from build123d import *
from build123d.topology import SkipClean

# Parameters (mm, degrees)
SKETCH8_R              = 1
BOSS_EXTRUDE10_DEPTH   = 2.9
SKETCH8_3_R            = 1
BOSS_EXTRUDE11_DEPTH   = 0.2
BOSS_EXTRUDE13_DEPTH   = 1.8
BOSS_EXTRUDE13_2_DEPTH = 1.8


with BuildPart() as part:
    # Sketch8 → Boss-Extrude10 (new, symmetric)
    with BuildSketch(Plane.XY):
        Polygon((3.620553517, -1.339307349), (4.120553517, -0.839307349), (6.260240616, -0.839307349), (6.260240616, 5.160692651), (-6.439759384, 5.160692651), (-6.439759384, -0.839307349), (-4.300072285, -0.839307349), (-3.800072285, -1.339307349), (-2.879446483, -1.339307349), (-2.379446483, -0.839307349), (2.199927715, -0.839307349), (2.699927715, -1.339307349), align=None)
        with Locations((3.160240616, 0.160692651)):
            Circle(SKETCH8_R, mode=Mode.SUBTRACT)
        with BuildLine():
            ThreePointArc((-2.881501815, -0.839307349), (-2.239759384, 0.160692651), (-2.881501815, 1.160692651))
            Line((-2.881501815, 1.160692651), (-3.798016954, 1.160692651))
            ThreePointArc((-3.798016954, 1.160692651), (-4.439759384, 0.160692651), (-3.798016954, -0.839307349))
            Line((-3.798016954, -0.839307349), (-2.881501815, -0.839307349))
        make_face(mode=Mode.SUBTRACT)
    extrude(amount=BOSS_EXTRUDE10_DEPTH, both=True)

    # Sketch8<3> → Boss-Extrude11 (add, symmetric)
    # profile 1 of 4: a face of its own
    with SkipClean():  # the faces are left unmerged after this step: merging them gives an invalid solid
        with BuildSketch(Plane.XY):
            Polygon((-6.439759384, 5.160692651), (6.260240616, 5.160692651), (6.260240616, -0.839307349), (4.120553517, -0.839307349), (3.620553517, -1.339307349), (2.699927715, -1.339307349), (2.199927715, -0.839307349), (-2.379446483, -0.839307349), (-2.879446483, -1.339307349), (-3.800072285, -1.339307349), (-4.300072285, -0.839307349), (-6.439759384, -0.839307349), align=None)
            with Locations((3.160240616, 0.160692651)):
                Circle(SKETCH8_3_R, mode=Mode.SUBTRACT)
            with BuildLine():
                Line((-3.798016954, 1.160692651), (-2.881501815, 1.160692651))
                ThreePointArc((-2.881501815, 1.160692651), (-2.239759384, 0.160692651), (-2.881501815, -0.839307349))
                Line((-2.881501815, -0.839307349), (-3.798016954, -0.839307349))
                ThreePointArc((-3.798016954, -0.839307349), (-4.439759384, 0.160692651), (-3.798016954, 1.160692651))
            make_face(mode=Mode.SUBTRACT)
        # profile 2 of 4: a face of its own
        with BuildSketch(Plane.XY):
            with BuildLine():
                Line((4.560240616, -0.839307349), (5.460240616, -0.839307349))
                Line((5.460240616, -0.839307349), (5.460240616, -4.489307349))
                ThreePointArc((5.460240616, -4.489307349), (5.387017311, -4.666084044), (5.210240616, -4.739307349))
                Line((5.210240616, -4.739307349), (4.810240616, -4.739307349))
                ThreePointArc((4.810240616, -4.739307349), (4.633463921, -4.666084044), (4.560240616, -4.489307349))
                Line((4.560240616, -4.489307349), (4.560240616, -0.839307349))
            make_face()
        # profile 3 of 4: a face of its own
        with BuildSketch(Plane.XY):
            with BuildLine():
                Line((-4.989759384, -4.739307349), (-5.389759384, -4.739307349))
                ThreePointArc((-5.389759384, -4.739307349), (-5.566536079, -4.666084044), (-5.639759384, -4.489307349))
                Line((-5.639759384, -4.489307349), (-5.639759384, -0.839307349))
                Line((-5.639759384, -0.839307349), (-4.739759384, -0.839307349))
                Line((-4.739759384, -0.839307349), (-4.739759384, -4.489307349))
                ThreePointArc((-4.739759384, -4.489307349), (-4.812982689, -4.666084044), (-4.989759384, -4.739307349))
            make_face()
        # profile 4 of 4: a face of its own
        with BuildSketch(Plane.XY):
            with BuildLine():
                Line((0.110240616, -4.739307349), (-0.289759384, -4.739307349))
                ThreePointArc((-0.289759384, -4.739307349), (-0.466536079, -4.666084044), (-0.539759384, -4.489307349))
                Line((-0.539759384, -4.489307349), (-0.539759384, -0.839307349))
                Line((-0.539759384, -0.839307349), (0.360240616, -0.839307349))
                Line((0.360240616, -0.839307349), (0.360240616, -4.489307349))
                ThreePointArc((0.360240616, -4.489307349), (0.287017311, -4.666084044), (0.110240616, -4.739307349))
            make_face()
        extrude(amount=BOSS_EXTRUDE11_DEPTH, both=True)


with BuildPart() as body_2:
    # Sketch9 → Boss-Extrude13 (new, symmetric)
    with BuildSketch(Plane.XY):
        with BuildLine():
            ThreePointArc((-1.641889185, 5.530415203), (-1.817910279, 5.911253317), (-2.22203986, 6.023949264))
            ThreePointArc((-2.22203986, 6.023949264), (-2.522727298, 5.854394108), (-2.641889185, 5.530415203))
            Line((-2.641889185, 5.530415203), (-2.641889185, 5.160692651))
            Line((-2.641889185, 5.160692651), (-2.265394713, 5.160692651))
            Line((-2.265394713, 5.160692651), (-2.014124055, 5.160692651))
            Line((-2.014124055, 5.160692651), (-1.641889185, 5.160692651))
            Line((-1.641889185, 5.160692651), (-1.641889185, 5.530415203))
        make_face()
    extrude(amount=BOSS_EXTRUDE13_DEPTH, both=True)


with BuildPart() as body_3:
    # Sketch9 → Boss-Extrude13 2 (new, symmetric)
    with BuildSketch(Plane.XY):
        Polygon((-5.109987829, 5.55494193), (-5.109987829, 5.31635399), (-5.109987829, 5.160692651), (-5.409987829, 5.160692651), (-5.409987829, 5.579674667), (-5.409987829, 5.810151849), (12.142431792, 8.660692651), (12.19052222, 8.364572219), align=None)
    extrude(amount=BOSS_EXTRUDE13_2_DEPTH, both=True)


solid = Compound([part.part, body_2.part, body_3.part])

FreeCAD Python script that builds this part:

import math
import FreeCAD as App
import Part
import Sketcher

V = App.Vector


def add_polygon(sketch, points):
    """Adds a closed chain of lines whose ends are joined by coincident constraints."""
    first, n = sketch.GeometryCount, len(points)
    for a, b in zip(points, points[1:] + points[:1]):
        sketch.addGeometry(Part.LineSegment(App.Vector(*a, 0), App.Vector(*b, 0)), False)
    for i in range(n):
        sketch.addConstraint(Sketcher.Constraint("Coincident", first + i, 2, first + (i + 1) % n, 1))

doc = App.newDocument("Part")
body = doc.addObject("PartDesign::Body", "Body")

# Sketch on XY plane
sketch1 = body.newObject("Sketcher::SketchObject", "Sketch")
sketch1.AttachmentSupport = (doc.getObject("XY_Plane"), [""])
sketch1.MapMode = "FlatFace"
add_polygon(sketch1, [(3.620554, -1.339307), (4.120554, -0.839307), (6.260241, -0.839307), (6.260241, 5.160693), (-6.439759, 5.160693), (-6.439759, -0.839307), (-4.300072, -0.839307), (-3.800072, -1.339307), (-2.879446, -1.339307), (-2.379446, -0.839307), (2.199928, -0.839307), (2.699928, -1.339307)])  # lines 0-11
sketch1.addGeometry(Part.ArcOfCircle(Part.Circle(V(-3.339759, 0.160693, 0), V(0, 0, 1), 1.1), math.radians(-65.380023), math.radians(65.380023)), False)  # 12
sketch1.addGeometry(Part.LineSegment(V(-2.881502, -0.839307, 0), V(-3.798017, -0.839307, 0)), False)  # 13
sketch1.addGeometry(Part.ArcOfCircle(Part.Circle(V(-3.339759, 0.160693, 0), V(0, 0, 1), 1.1), math.radians(114.619977), math.radians(245.380023)), False)  # 14
sketch1.addGeometry(Part.LineSegment(V(-3.798017, 1.160693, 0), V(-2.881502, 1.160693, 0)), False)  # 15
sketch1.addGeometry(Part.Circle(V(3.160241, 0.160693, 0), V(0, 0, 1), 1), False)  # 16
sketch1.addConstraint(Sketcher.Constraint("Coincident", 12, 1, 13, 1))
sketch1.addConstraint(Sketcher.Constraint("Coincident", 13, 2, 14, 2))
sketch1.addConstraint(Sketcher.Constraint("Coincident", 14, 1, 15, 1))
sketch1.addConstraint(Sketcher.Constraint("Coincident", 15, 2, 12, 2))
sketch1.addConstraint(Sketcher.Constraint("Horizontal", 1))
sketch1.addConstraint(Sketcher.Constraint("Vertical", 2))
sketch1.addConstraint(Sketcher.Constraint("Horizontal", 3))
sketch1.addConstraint(Sketcher.Constraint("Vertical", 4))
sketch1.addConstraint(Sketcher.Constraint("Horizontal", 5))
sketch1.addConstraint(Sketcher.Constraint("Horizontal", 7))
sketch1.addConstraint(Sketcher.Constraint("Horizontal", 9))
sketch1.addConstraint(Sketcher.Constraint("Horizontal", 11))
sketch1.addConstraint(Sketcher.Constraint("Horizontal", 13))
sketch1.addConstraint(Sketcher.Constraint("Horizontal", 15))
sketch1.addConstraint(Sketcher.Constraint("Coincident", 14, 3, 12, 3))
sketch1.addConstraint(Sketcher.Constraint("Equal", 12, 14))
sketch1.addConstraint(Sketcher.Constraint("Perpendicular", 0, 6))
sketch1.addConstraint(Sketcher.Constraint("Perpendicular", 6, 8))
sketch1.addConstraint(Sketcher.Constraint("Perpendicular", 8, 10))
sketch1.addConstraint(Sketcher.Constraint("Horizontal", 14, 3, 16, 3))
sketch1.addConstraint(Sketcher.Constraint("Horizontal", 1, 2, 4, 2))
sketch1.addConstraint(Sketcher.Constraint("Horizontal", 5, 2, 8, 2))
sketch1.addConstraint(Sketcher.Constraint("Horizontal", 7, 2, 10, 2))
sketch1.addConstraint(Sketcher.Constraint("Horizontal", 9, 2, 12, 1))
sketch1.addConstraint(Sketcher.Constraint("Vertical", 13, 2, 14, 1))
sketch1.addConstraint(Sketcher.Constraint("Equal", 1, 5))
sketch1.addConstraint(Sketcher.Constraint("Equal", 7, 11))
sketch1.addConstraint(Sketcher.Constraint("Equal", 0, 6))
sketch1.addConstraint(Sketcher.Constraint("Diameter", 16, 2.0))
sketch1.addConstraint(Sketcher.Constraint("Radius", 12, 1.1))
sketch1.addConstraint(Sketcher.Constraint("DistanceY", 2, 1, 2, 2, 6.0))
sketch1.addConstraint(Sketcher.Constraint("DistanceX", 3, 2, 3, 1, 12.7))
sketch1.addConstraint(Sketcher.Constraint("DistanceY", 0, 2, 16, 3, 1.0))
sketch1.addConstraint(Sketcher.Constraint("DistanceX", 12, 3, 16, 3, 6.5))
sketch1.addConstraint(Sketcher.Constraint("DistanceX", 16, 3, 1, 2, 3.1))
sketch1.addConstraint(Sketcher.Constraint("DistanceX", 5, 2, 6, 2, 0.5))
sketch1.addConstraint(Sketcher.Constraint("DistanceX", 12, 1, -1, 1, 2.881502))
sketch1.addConstraint(Sketcher.Constraint("DistanceX", 1, 1, 1, 2, 2.139687))
sketch1.addConstraint(Sketcher.Constraint("DistanceX", 7, 1, 7, 2, 0.920626))
sketch1.addConstraint(Sketcher.Constraint("DistanceY", -1, 1, 12, 3, 0.160693))
pad1 = body.newObject("PartDesign::Pad", "Pad")
pad1.Profile = sketch1
pad1.Length = 5.8
pad1.Midplane = True

# Sketch on XY plane
sketch2 = body.newObject("Sketcher::SketchObject", "Sketch001")
sketch2.AttachmentSupport = (doc.getObject("XY_Plane"), [""])
sketch2.MapMode = "FlatFace"
sketch2.addGeometry(Part.LineSegment(V(6.260241, 5.160693, 0), V(-6.439759, 5.160693, 0)), False)
sketch2.addGeometry(Part.LineSegment(V(-6.439759, 5.160693, 0), V(-6.439759, -0.839307, 0)), False)
sketch2.addGeometry(Part.LineSegment(V(-6.439759, -0.839307, 0), V(-5.639759, -0.839307, 0)), False)
sketch2.addGeometry(Part.LineSegment(V(-5.639759, -0.839307, 0), V(-5.639759, -4.489307, 0)), False)
sketch2.addGeometry(Part.ArcOfCircle(Part.Circle(V(-5.389759, -4.489307, 0), V(0, 0, 1), 0.25), math.radians(-180), math.radians(-90)), False)
sketch2.addGeometry(Part.LineSegment(V(-5.389759, -4.739307, 0), V(-4.989759, -4.739307, 0)), False)
sketch2.addGeometry(Part.ArcOfCircle(Part.Circle(V(-4.989759, -4.489307, 0), V(0, 0, 1), 0.25), math.radians(-90), math.radians(0)), False)
sketch2.addGeometry(Part.LineSegment(V(-4.739759, -4.489307, 0), V(-4.739759, -0.839307, 0)), False)
sketch2.addGeometry(Part.LineSegment(V(-4.739759, -0.839307, 0), V(-4.300072, -0.839307, 0)), False)
sketch2.addGeometry(Part.LineSegment(V(-4.300072, -0.839307, 0), V(-3.800072, -1.339307, 0)), False)
sketch2.addGeometry(Part.LineSegment(V(-3.800072, -1.339307, 0), V(-2.879446, -1.339307, 0)), False)
sketch2.addGeometry(Part.LineSegment(V(-2.879446, -1.339307, 0), V(-2.379446, -0.839307, 0)), False)
sketch2.addGeometry(Part.LineSegment(V(-2.379446, -0.839307, 0), V(-0.539759, -0.839307, 0)), False)
sketch2.addGeometry(Part.LineSegment(V(-0.539759, -0.839307, 0), V(-0.539759, -4.489307, 0)), False)
sketch2.addGeometry(Part.ArcOfCircle(Part.Circle(V(-0.289759, -4.489307, 0), V(0, 0, 1), 0.25), math.radians(-180), math.radians(-90)), False)
sketch2.addGeometry(Part.LineSegment(V(-0.289759, -4.739307, 0), V(0.110241, -4.739307, 0)), False)
sketch2.addGeometry(Part.ArcOfCircle(Part.Circle(V(0.110241, -4.489307, 0), V(0, 0, 1), 0.25), math.radians(-90), math.radians(0)), False)
sketch2.addGeometry(Part.LineSegment(V(0.360241, -4.489307, 0), V(0.360241, -0.839307, 0)), False)
sketch2.addGeometry(Part.LineSegment(V(0.360241, -0.839307, 0), V(2.199928, -0.839307, 0)), False)
sketch2.addGeometry(Part.LineSegment(V(2.199928, -0.839307, 0), V(2.699928, -1.339307, 0)), False)
sketch2.addGeometry(Part.LineSegment(V(2.699928, -1.339307, 0), V(3.620554, -1.339307, 0)), False)
sketch2.addGeometry(Part.LineSegment(V(3.620554, -1.339307, 0), V(4.120554, -0.839307, 0)), False)
sketch2.addGeometry(Part.LineSegment(V(4.120554, -0.839307, 0), V(4.560241, -0.839307, 0)), False)
sketch2.addGeometry(Part.LineSegment(V(4.560241, -0.839307, 0), V(4.560241, -4.489307, 0)), False)
sketch2.addGeometry(Part.ArcOfCircle(Part.Circle(V(4.810241, -4.489307, 0), V(0, 0, 1), 0.25), math.radians(-180), math.radians(-90)), False)
sketch2.addGeometry(Part.LineSegment(V(4.810241, -4.739307, 0), V(5.210241, -4.739307, 0)), False)
sketch2.addGeometry(Part.ArcOfCircle(Part.Circle(V(5.210241, -4.489307, 0), V(0, 0, 1), 0.25), math.radians(-90), math.radians(0)), False)
sketch2.addGeometry(Part.LineSegment(V(5.460241, -4.489307, 0), V(5.460241, -0.839307, 0)), False)
sketch2.addGeometry(Part.LineSegment(V(5.460241, -0.839307, 0), V(6.260241, -0.839307, 0)), False)
sketch2.addGeometry(Part.LineSegment(V(6.260241, -0.839307, 0), V(6.260241, 5.160693, 0)), False)
sketch2.addGeometry(Part.Circle(V(3.160241, 0.160693, 0), V(0, 0, 1), 1), False)
sketch2.addGeometry(Part.LineSegment(V(-3.798017, 1.160693, 0), V(-2.881502, 1.160693, 0)), False)
sketch2.addGeometry(Part.ArcOfCircle(Part.Circle(V(-3.339759, 0.160693, 0), V(0, 0, 1), 1.1), math.radians(-65.380023), math.radians(65.380023)), False)
sketch2.addGeometry(Part.LineSegment(V(-2.881502, -0.839307, 0), V(-3.798017, -0.839307, 0)), False)
sketch2.addGeometry(Part.ArcOfCircle(Part.Circle(V(-3.339759, 0.160693, 0), V(0, 0, 1), 1.1), math.radians(114.619977), math.radians(245.380023)), False)
sketch2.addConstraint(Sketcher.Constraint("Coincident", 0, 2, 1, 1))
sketch2.addConstraint(Sketcher.Constraint("Coincident", 1, 2, 2, 1))
sketch2.addConstraint(Sketcher.Constraint("Coincident", 2, 2, 3, 1))
sketch2.addConstraint(Sketcher.Constraint("Tangent", 3, 2, 4, 1))
sketch2.addConstraint(Sketcher.Constraint("Tangent", 4, 2, 5, 1))
sketch2.addConstraint(Sketcher.Constraint("Tangent", 5, 2, 6, 1))
sketch2.addConstraint(Sketcher.Constraint("Tangent", 6, 2, 7, 1))
sketch2.addConstraint(Sketcher.Constraint("Coincident", 7, 2, 8, 1))
sketch2.addConstraint(Sketcher.Constraint("Coincident", 8, 2, 9, 1))
sketch2.addConstraint(Sketcher.Constraint("Coincident", 9, 2, 10, 1))
sketch2.addConstraint(Sketcher.Constraint("Coincident", 10, 2, 11, 1))
sketch2.addConstraint(Sketcher.Constraint("Coincident", 11, 2, 12, 1))
sketch2.addConstraint(Sketcher.Constraint("Coincident", 12, 2, 13, 1))
sketch2.addConstraint(Sketcher.Constraint("Tangent", 13, 2, 14, 1))
sketch2.addConstraint(Sketcher.Constraint("Tangent", 14, 2, 15, 1))
sketch2.addConstraint(Sketcher.Constraint("Tangent", 15, 2, 16, 1))
sketch2.addConstraint(Sketcher.Constraint("Tangent", 16, 2, 17, 1))
sketch2.addConstraint(Sketcher.Constraint("Coincident", 17, 2, 18, 1))
sketch2.addConstraint(Sketcher.Constraint("Coincident", 18, 2, 19, 1))
sketch2.addConstraint(Sketcher.Constraint("Coincident", 19, 2, 20, 1))
sketch2.addConstraint(Sketcher.Constraint("Coincident", 20, 2, 21, 1))
sketch2.addConstraint(Sketcher.Constraint("Coincident", 21, 2, 22, 1))
sketch2.addConstraint(Sketcher.Constraint("Coincident", 22, 2, 23, 1))
sketch2.addConstraint(Sketcher.Constraint("Tangent", 23, 2, 24, 1))
sketch2.addConstraint(Sketcher.Constraint("Tangent", 24, 2, 25, 1))
sketch2.addConstraint(Sketcher.Constraint("Tangent", 25, 2, 26, 1))
sketch2.addConstraint(Sketcher.Constraint("Tangent", 26, 2, 27, 1))
sketch2.addConstraint(Sketcher.Constraint("Coincident", 27, 2, 28, 1))
sketch2.addConstraint(Sketcher.Constraint("Coincident", 28, 2, 29, 1))
sketch2.addConstraint(Sketcher.Constraint("Coincident", 29, 2, 0, 1))
sketch2.addConstraint(Sketcher.Constraint("Coincident", 31, 2, 32, 2))
sketch2.addConstraint(Sketcher.Constraint("Coincident", 32, 1, 33, 1))
sketch2.addConstraint(Sketcher.Constraint("Coincident", 33, 2, 34, 2))
sketch2.addConstraint(Sketcher.Constraint("Coincident", 34, 1, 31, 1))
sketch2.addConstraint(Sketcher.Constraint("Horizontal", 0))
sketch2.addConstraint(Sketcher.Constraint("Vertical", 1))
sketch2.addConstraint(Sketcher.Constraint("Horizontal", 2))
sketch2.addConstraint(Sketcher.Constraint("Vertical", 3))
sketch2.addConstraint(Sketcher.Constraint("Horizontal", 5))
sketch2.addConstraint(Sketcher.Constraint("Vertical", 7))
sketch2.addConstraint(Sketcher.Constraint("Horizontal", 8))
sketch2.addConstraint(Sketcher.Constraint("Horizontal", 10))
sketch2.addConstraint(Sketcher.Constraint("Horizontal", 12))
sketch2.addConstraint(Sketcher.Constraint("Vertical", 13))
sketch2.addConstraint(Sketcher.Constraint("Horizontal", 15))
sketch2.addConstraint(Sketcher.Constraint("Vertical", 17))
sketch2.addConstraint(Sketcher.Constraint("Horizontal", 18))
sketch2.addConstraint(Sketcher.Constraint("Horizontal", 20))
sketch2.addConstraint(Sketcher.Constraint("Horizontal", 22))
sketch2.addConstraint(Sketcher.Constraint("Vertical", 23))
sketch2.addConstraint(Sketcher.Constraint("Horizontal", 25))
sketch2.addConstraint(Sketcher.Constraint("Vertical", 27))
sketch2.addConstraint(Sketcher.Constraint("Horizontal", 28))
sketch2.addConstraint(Sketcher.Constraint("Vertical", 29))
sketch2.addConstraint(Sketcher.Constraint("Horizontal", 31))
sketch2.addConstraint(Sketcher.Constraint("Horizontal", 33))
sketch2.addConstraint(Sketcher.Constraint("Coincident", 34, 3, 32, 3))
sketch2.addConstraint(Sketcher.Constraint("Equal", 4, 6))
sketch2.addConstraint(Sketcher.Constraint("Equal", 6, 14))
sketch2.addConstraint(Sketcher.Constraint("Equal", 14, 16))
sketch2.addConstraint(Sketcher.Constraint("Equal", 16, 24))
sketch2.addConstraint(Sketcher.Constraint("Equal", 24, 26))
sketch2.addConstraint(Sketcher.Constraint("Equal", 32, 34))
sketch2.addConstraint(Sketcher.Constraint("Perpendicular", 9, 11))
sketch2.addConstraint(Sketcher.Constraint("Perpendicular", 11, 19))
sketch2.addConstraint(Sketcher.Constraint("Perpendicular", 19, 21))
sketch2.addConstraint(Sketcher.Constraint("Horizontal", 6, 3, 14, 3))
sketch2.addConstraint(Sketcher.Constraint("Horizontal", 16, 3, 24, 3))
sketch2.addConstraint(Sketcher.Constraint("Horizontal", 30, 3, 32, 3))
sketch2.addConstraint(Sketcher.Constraint("Horizontal", 2, 2, 7, 2))
sketch2.addConstraint(Sketcher.Constraint("Horizontal", 8, 2, 11, 2))
sketch2.addConstraint(Sketcher.Constraint("Horizontal", 12, 2, 17, 2))
sketch2.addConstraint(Sketcher.Constraint("Horizontal", 10, 2, 19, 2))
sketch2.addConstraint(Sketcher.Constraint("Horizontal", 18, 2, 21, 2))
sketch2.addConstraint(Sketcher.Constraint("Horizontal", 22, 2, 27, 2))
sketch2.addConstraint(Sketcher.Constraint("Horizontal", 28, 2, 32, 1))
sketch2.addConstraint(Sketcher.Constraint("Vertical", 31, 2, 32, 1))
sketch2.addConstraint(Sketcher.Constraint("Equal", 5, 15))
sketch2.addConstraint(Sketcher.Constraint("Equal", 12, 18))
sketch2.addConstraint(Sketcher.Constraint("Equal", 10, 20))
sketch2.addConstraint(Sketcher.Constraint("Equal", 8, 22))
sketch2.addConstraint(Sketcher.Constraint("Equal", 15, 25))
sketch2.addConstraint(Sketcher.Constraint("Equal", 2, 28))
sketch2.addConstraint(Sketcher.Constraint("Equal", 9, 11))
sketch2.addConstraint(Sketcher.Constraint("Diameter", 30, 2.0))
sketch2.addConstraint(Sketcher.Constraint("Radius", 32, 1.1))
sketch2.addConstraint(Sketcher.Constraint("DistanceY", 1, 2, 1, 1, 6.0))
sketch2.addConstraint(Sketcher.Constraint("Radius", 4, 0.25))
sketch2.addConstraint(Sketcher.Constraint("DistanceX", 0, 2, 0, 1, 12.7))
sketch2.addConstraint(Sketcher.Constraint("DistanceX", 2, 1, 2, 2, 0.8))
sketch2.addConstraint(Sketcher.Constraint("DistanceX", 5, 1, 5, 2, 0.4))
sketch2.addConstraint(Sketcher.Constraint("DistanceY", 32, 3, 0, 2, 5.0))
sketch2.addConstraint(Sketcher.Constraint("DistanceY", 3, 2, 3, 1, 3.65))
sketch2.addConstraint(Sketcher.Constraint("DistanceX", 32, 3, 30, 3, 6.5))
sketch2.addConstraint(Sketcher.Constraint("DistanceX", 0, 2, 32, 3, 3.1))
sketch2.addConstraint(Sketcher.Constraint("DistanceX", 8, 2, 9, 2, 0.5))
sketch2.addConstraint(Sketcher.Constraint("DistanceX", 31, 2, -1, 1, 2.881502))
sketch2.addConstraint(Sketcher.Constraint("DistanceX", 8, 1, 8, 2, 0.439687))
sketch2.addConstraint(Sketcher.Constraint("DistanceX", 10, 1, 10, 2, 0.920626))
sketch2.addConstraint(Sketcher.Constraint("DistanceY", 4, 3, -1, 1, 4.489307))
pad2 = body.newObject("PartDesign::Pad", "Pad001")
pad2.Profile = sketch2
pad2.Length = 0.4
pad2.Midplane = True
body2 = doc.addObject("PartDesign::Body", "Body001")

# Sketch on XY plane
sketch3 = body2.newObject("Sketcher::SketchObject", "Sketch002")
sketch3.AttachmentSupport = (doc.getObject("XY_Plane001"), [""])
sketch3.MapMode = "FlatFace"
sketch3.addGeometry(Part.ArcOfCircle(Part.Circle(V(-2.141889, 5.530415, 0), V(0, 0, 1), 0.5), math.radians(0), math.radians(99.224388)), False)
sketch3.addGeometry(Part.ArcOfCircle(Part.Circle(V(-2.141889, 5.530415, 0), V(0, 0, 1), 0.5), math.radians(99.224388), math.radians(180)), False)
sketch3.addGeometry(Part.LineSegment(V(-2.641889, 5.530415, 0), V(-2.641889, 5.160693, 0)), False)
sketch3.addGeometry(Part.LineSegment(V(-2.641889, 5.160693, 0), V(-1.641889, 5.160693, 0)), False)
sketch3.addGeometry(Part.LineSegment(V(-1.641889, 5.160693, 0), V(-1.641889, 5.530415, 0)), False)
sketch3.addConstraint(Sketcher.Constraint("Tangent", 0, 2, 1, 1))
sketch3.addConstraint(Sketcher.Constraint("Tangent", 1, 2, 2, 1))
sketch3.addConstraint(Sketcher.Constraint("Coincident", 2, 2, 3, 1))
sketch3.addConstraint(Sketcher.Constraint("Coincident", 3, 2, 4, 1))
sketch3.addConstraint(Sketcher.Constraint("Tangent", 4, 2, 0, 1))
sketch3.addConstraint(Sketcher.Constraint("Vertical", 2))
sketch3.addConstraint(Sketcher.Constraint("Horizontal", 3))
sketch3.addConstraint(Sketcher.Constraint("Vertical", 4))
sketch3.addConstraint(Sketcher.Constraint("Equal", 0, 1))
sketch3.addConstraint(Sketcher.Constraint("Radius", 0, 0.5))
sketch3.addConstraint(Sketcher.Constraint("DistanceY", 2, 2, 2, 1, 0.369723))
sketch3.addConstraint(Sketcher.Constraint("DistanceX", 0, 3, -1, 1, 2.141889))
sketch3.addConstraint(Sketcher.Constraint("DistanceX", 0, 2, -1, 1, 2.22204))
sketch3.addConstraint(Sketcher.Constraint("DistanceY", -1, 1, 0, 2, 6.023949))
pad3 = body2.newObject("PartDesign::Pad", "Pad002")
pad3.Profile = sketch3
pad3.Length = 3.6
pad3.Midplane = True
body3 = doc.addObject("PartDesign::Body", "Body002")

# Sketch on XY plane
sketch4 = body3.newObject("Sketcher::SketchObject", "Sketch003")
sketch4.AttachmentSupport = (doc.getObject("XY_Plane002"), [""])
sketch4.MapMode = "FlatFace"
add_polygon(sketch4, [(-5.109988, 5.160693), (-5.109988, 5.554942), (12.190522, 8.364572), (12.142432, 8.660693), (-5.409988, 5.810152), (-5.409988, 5.160693)])  # lines 0-5
sketch4.addConstraint(Sketcher.Constraint("Vertical", 0))
sketch4.addConstraint(Sketcher.Constraint("Vertical", 4))
sketch4.addConstraint(Sketcher.Constraint("Horizontal", 5))
sketch4.addConstraint(Sketcher.Constraint("Perpendicular", 1, 2))
sketch4.addConstraint(Sketcher.Constraint("Perpendicular", 2, 3))
sketch4.addConstraint(Sketcher.Constraint("DistanceX", 5, 1, 5, 2, 0.3))
sketch4.addConstraint(Sketcher.Constraint("Distance", 2, 0.3))
sketch4.addConstraint(Sketcher.Constraint("DistanceY", 4, 2, 2, 2, 3.5))
sketch4.addConstraint(Sketcher.Constraint("DistanceY", 0, 1, 0, 2, 0.394249))
sketch4.addConstraint(Sketcher.Constraint("Distance", 1, 17.527169))
sketch4.addConstraint(Sketcher.Constraint("DistanceY", -1, 1, 0, 2, 5.554942))
sketch4.addConstraint(Sketcher.Constraint("DistanceX", -1, 1, 2, 2, 12.142432))
pad4 = body3.newObject("PartDesign::Pad", "Pad003")
pad4.Profile = sketch4
pad4.Length = 3.6
pad4.Midplane = True

doc.recompute()
